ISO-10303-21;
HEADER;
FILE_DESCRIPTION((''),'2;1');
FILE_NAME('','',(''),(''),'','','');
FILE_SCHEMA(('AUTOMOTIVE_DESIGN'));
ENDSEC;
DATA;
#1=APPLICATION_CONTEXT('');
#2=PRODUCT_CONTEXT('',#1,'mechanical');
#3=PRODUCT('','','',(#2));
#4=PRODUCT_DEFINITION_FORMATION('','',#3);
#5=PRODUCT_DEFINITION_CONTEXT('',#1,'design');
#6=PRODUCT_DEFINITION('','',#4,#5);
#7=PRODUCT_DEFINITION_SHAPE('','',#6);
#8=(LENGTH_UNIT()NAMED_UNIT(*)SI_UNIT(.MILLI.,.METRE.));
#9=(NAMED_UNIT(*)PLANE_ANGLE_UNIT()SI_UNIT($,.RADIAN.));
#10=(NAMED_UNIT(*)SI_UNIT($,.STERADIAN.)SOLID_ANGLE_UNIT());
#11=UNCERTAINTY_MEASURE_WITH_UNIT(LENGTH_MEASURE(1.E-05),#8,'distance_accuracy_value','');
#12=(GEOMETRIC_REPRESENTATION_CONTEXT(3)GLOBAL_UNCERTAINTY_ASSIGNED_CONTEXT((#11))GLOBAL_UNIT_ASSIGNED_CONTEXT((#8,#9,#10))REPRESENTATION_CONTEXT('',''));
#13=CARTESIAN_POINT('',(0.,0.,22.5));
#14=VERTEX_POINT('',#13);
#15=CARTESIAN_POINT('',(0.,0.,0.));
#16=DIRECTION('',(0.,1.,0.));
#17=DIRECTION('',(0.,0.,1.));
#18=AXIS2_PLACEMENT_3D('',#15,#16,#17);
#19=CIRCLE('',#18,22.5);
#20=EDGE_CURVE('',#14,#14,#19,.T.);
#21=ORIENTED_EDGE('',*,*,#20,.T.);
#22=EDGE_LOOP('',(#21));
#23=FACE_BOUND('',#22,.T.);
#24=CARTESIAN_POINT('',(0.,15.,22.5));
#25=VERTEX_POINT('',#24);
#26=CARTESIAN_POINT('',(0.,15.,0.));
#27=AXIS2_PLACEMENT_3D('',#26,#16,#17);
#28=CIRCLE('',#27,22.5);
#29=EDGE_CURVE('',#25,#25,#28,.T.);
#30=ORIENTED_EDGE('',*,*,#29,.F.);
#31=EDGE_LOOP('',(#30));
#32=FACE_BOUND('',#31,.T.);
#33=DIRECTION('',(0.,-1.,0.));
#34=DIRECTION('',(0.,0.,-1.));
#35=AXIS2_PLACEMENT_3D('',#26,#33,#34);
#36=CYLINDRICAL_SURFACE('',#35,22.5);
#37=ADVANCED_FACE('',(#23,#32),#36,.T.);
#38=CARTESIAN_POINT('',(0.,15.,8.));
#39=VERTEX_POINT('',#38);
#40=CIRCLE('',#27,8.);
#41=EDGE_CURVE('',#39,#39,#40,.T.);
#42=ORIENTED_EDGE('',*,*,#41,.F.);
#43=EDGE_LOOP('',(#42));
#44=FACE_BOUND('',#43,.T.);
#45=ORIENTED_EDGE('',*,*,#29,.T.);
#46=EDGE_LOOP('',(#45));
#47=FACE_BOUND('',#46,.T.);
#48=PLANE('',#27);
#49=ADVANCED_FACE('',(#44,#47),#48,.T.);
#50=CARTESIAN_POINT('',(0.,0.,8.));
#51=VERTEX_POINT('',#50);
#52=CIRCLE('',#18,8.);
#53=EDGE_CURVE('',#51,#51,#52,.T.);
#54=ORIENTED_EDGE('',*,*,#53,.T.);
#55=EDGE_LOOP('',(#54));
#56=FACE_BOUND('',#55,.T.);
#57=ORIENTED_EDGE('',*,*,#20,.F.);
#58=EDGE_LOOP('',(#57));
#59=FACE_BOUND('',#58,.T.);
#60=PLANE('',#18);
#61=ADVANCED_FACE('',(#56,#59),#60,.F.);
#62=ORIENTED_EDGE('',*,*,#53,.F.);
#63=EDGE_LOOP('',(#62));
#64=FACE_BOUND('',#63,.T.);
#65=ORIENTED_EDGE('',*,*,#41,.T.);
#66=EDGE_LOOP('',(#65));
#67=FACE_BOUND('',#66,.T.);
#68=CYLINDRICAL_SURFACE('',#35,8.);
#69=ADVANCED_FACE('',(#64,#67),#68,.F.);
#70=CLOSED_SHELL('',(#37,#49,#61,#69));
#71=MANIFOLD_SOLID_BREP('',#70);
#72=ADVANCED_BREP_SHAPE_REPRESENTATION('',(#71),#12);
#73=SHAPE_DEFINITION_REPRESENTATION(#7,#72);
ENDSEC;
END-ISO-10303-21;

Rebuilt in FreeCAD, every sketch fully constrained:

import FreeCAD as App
import Part
import Sketcher
Q = App.Units.Quantity

doc = App.newDocument("Part")
params = doc.addObject("Spreadsheet::Sheet", "Params")
for row, (alias, value) in enumerate([
    ("sketch1_diameter", "45 mm"),
    ("sketch1_diameter2", "16 mm"),
    ("pad1_length", "15 mm"),
], start=1):
    params.set(f"A{row}", alias)
    params.set(f"B{row}", "=" + value)
    params.setAlias(f"B{row}", alias)

body = doc.addObject("PartDesign::Body", "Body")

# Sketch on XZ plane
sketch1 = body.newObject("Sketcher::SketchObject", "Sketch")
sketch1.AttachmentSupport = (doc.getObject("XZ_Plane"), [""])
sketch1.MapMode = "FlatFace"
sketch1.addGeometry(Part.Circle(App.Vector(0, 0, 0), App.Vector(0, 0, 1), 22), False)
sketch1.addGeometry(Part.Circle(App.Vector(0, 0, 0), App.Vector(0, 0, 1), 8), False)
sketch1.addConstraint(Sketcher.Constraint("Coincident", 0, 3, -1, 1))
sketch1.addConstraint(Sketcher.Constraint("Coincident", 1, 3, -1, 1))
sketch1.addConstraint(Sketcher.Constraint("Diameter", 0, Q("45 mm")))
sketch1.addConstraint(Sketcher.Constraint("Diameter", 1, Q("16 mm")))
sketch1.setExpression("Constraints[2]", "Params.sketch1_diameter")
sketch1.setExpression("Constraints[3]", "Params.sketch1_diameter2")
pad1 = body.newObject("PartDesign::Pad", "Pad")
pad1.Profile = sketch1
pad1.setExpression("Length", "Params.pad1_length")
pad1.Reversed = True

doc.recompute()
